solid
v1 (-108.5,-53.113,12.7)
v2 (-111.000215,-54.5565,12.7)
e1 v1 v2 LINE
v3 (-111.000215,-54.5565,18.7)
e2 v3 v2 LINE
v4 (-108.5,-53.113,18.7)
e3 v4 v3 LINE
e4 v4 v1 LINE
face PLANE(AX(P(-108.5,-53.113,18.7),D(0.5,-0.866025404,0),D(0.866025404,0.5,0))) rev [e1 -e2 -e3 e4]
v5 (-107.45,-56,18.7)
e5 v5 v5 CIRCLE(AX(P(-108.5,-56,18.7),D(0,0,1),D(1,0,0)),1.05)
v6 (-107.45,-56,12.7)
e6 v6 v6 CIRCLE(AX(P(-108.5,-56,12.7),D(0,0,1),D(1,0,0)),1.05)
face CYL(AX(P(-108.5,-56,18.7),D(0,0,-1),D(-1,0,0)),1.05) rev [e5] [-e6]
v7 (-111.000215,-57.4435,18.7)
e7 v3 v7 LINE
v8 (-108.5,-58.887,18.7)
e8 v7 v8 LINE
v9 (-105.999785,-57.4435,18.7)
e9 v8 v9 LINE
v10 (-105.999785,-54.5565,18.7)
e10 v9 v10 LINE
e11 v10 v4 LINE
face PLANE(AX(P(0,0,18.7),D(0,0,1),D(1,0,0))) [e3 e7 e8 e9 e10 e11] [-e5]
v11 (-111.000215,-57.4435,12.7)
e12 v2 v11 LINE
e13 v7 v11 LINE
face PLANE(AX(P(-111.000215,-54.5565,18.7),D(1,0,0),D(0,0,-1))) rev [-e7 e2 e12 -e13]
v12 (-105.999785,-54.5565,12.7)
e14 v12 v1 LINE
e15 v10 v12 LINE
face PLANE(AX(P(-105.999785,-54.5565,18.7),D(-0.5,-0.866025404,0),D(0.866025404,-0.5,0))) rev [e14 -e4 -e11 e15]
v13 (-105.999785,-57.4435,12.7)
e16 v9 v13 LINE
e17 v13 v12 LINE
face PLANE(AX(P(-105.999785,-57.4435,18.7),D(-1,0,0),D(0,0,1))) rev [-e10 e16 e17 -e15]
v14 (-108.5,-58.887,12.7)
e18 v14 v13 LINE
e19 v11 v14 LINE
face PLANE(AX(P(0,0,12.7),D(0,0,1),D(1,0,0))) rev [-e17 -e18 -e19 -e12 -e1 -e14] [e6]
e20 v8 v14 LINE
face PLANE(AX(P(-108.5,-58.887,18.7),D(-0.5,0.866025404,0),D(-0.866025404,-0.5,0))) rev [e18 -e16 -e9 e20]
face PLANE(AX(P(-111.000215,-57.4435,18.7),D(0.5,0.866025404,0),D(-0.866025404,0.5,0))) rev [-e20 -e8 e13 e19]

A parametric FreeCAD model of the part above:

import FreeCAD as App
import Part
import Sketcher
Q = App.Units.Quantity

doc = App.newDocument("Part")
body = doc.addObject("PartDesign::Body", "Body")

sketch1 = body.newObject("Sketcher::SketchObject", "Sketch")
sketch1.AttachmentSupport = (doc.getObject("XY_Plane"), [""])
sketch1.MapMode = "FlatFace"
sketch1.AttachmentOffset = App.Placement(App.Vector(0, 0, 12.7), App.Rotation())
sketch1.addGeometry(Part.LineSegment(App.Vector(-106, -54.6, 0), App.Vector(-108.5, -53.1, 0)), False)
sketch1.addGeometry(Part.LineSegment(App.Vector(-108.5, -53.1, 0), App.Vector(-111, -54.6, 0)), False)
sketch1.addGeometry(Part.LineSegment(App.Vector(-111, -54.6, 0), App.Vector(-111, -57.4, 0)), False)
sketch1.addGeometry(Part.LineSegment(App.Vector(-111, -57.4, 0), App.Vector(-108.5, -58.9, 0)), False)
sketch1.addGeometry(Part.LineSegment(App.Vector(-108.5, -58.9, 0), App.Vector(-106, -57.4, 0)), False)
sketch1.addGeometry(Part.LineSegment(App.Vector(-106, -57.4, 0), App.Vector(-106, -54.6, 0)), False)
sketch1.addConstraint(Sketcher.Constraint("Coincident", 0, 2, 1, 1))
sketch1.addConstraint(Sketcher.Constraint("Coincident", 1, 2, 2, 1))
sketch1.addConstraint(Sketcher.Constraint("Coincident", 2, 2, 3, 1))
sketch1.addConstraint(Sketcher.Constraint("Coincident", 3, 2, 4, 1))
sketch1.addConstraint(Sketcher.Constraint("Coincident", 4, 2, 5, 1))
sketch1.addConstraint(Sketcher.Constraint("Coincident", 5, 2, 0, 1))
sketch1.addConstraint(Sketcher.Constraint("Vertical", 2))
sketch1.addConstraint(Sketcher.Constraint("Vertical", 5))
sketch1.addConstraint(Sketcher.Constraint("Parallel", 0, 3))
sketch1.addConstraint(Sketcher.Constraint("Parallel", 1, 4))
sketch1.addConstraint(Sketcher.Constraint("Horizontal", 2, 2, 4, 2))
sketch1.addConstraint(Sketcher.Constraint("Horizontal", 1, 2, 5, 2))
sketch1.addConstraint(Sketcher.Constraint("Vertical", 0, 2, 3, 2))
sketch1.addConstraint(Sketcher.Constraint("Angle", 0, Q("150 deg")))
sketch1.addConstraint(Sketcher.Constraint("DistanceX", 0, 2, -1, 1, 108.5))
sketch1.addConstraint(Sketcher.Constraint("DistanceY", 2, 2, 2, 1, 2.887))
sketch1.addConstraint(Sketcher.Constraint("Distance", 0, 2.887))
sketch1.addConstraint(Sketcher.Constraint("DistanceY", 0, 2, -1, 1, 53.113))
pad1 = body.newObject("PartDesign::Pad", "Pad")
pad1.Profile = sketch1
pad1.Length = 6

sketch2 = body.newObject("Sketcher::SketchObject", "Sketch001")
sketch2.AttachmentSupport = (doc.getObject("XY_Plane"), [""])
sketch2.MapMode = "FlatFace"
sketch2.AttachmentOffset = App.Placement(App.Vector(0, 0, 12.7), App.Rotation())
sketch2.addGeometry(Part.Circle(App.Vector(-108.5, -56, 0), App.Vector(0, 0, 1), 1.1), False)
sketch2.addConstraint(Sketcher.Constraint("Diameter", 0, 2.1))
sketch2.addConstraint(Sketcher.Constraint("DistanceY", 0, 3, -1, 1, 56.0))
sketch2.addConstraint(Sketcher.Constraint("DistanceX", 0, 3, -1, 1, 108.5))
pocket1 = body.newObject("PartDesign::Pocket", "Pocket")
pocket1.Profile = sketch2
pocket1.Length = 6
pocket1.Reversed = True

doc.recompute()
